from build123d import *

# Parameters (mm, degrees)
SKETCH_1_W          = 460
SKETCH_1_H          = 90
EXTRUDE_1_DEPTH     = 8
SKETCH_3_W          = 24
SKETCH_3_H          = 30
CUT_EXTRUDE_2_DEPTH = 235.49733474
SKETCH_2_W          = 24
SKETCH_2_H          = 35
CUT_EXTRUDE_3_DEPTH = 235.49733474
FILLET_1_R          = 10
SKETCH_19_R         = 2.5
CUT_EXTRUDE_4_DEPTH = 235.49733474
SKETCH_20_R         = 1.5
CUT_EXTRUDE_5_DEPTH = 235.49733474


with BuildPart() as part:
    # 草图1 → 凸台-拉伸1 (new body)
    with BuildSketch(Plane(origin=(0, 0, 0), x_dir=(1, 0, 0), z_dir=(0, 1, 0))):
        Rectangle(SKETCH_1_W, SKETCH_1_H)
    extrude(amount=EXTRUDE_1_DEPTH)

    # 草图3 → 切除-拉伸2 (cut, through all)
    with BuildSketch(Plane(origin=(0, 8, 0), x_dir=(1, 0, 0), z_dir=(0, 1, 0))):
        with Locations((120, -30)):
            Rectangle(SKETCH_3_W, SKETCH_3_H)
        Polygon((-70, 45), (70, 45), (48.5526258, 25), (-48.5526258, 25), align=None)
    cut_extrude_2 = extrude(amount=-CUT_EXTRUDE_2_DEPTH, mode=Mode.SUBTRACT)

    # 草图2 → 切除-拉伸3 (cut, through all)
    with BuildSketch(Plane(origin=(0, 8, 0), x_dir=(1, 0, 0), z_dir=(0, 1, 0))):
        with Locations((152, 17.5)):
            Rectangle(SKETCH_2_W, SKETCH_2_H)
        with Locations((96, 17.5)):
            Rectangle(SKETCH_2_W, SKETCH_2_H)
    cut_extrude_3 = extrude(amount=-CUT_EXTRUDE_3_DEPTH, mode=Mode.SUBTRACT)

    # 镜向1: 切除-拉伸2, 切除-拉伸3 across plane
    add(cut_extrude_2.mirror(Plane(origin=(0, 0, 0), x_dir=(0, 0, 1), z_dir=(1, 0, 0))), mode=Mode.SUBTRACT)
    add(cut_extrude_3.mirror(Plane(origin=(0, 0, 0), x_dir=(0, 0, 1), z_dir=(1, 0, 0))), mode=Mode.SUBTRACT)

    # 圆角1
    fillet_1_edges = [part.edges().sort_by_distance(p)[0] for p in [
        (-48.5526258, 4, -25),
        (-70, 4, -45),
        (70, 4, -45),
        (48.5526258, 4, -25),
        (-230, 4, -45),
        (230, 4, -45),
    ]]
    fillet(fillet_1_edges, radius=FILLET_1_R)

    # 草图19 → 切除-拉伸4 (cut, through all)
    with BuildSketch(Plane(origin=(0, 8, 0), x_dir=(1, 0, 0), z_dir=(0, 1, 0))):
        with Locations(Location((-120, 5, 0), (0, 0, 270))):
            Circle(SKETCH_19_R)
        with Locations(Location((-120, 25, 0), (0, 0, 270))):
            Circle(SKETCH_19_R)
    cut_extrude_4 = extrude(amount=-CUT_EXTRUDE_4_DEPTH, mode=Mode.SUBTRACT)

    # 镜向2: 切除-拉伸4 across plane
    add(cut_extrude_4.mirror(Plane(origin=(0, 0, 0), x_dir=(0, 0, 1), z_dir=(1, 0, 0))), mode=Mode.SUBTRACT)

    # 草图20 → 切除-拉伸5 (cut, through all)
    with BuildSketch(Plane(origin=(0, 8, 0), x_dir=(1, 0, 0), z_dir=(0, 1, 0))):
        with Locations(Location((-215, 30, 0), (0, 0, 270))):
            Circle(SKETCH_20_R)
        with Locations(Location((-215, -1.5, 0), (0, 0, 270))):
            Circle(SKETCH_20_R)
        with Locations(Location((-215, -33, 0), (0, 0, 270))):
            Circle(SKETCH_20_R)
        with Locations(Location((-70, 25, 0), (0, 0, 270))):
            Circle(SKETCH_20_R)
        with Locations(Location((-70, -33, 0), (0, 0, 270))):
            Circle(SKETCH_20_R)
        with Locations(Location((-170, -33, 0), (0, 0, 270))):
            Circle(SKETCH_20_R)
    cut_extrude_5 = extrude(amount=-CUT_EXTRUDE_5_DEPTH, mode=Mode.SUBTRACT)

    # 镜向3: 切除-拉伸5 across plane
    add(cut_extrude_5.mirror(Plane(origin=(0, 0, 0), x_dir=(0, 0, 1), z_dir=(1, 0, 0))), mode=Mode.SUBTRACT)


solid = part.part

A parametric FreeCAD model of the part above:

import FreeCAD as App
import Part
import Sketcher

V = App.Vector
Q = App.Units.Quantity


def edges_at(feature, points):
    """Names of the edges that pass closest to the given points."""
    edges = feature.Shape.Edges
    near = lambda p: min(range(len(edges)), key=lambda i: edges[i].distToShape(Part.Vertex(*p))[0])
    return sorted({f"Edge{near(p) + 1}" for p in points})


def add_polygon(sketch, points):
    """Adds a closed chain of lines whose ends are joined by coincident constraints."""
    first, n = sketch.GeometryCount, len(points)
    for a, b in zip(points, points[1:] + points[:1]):
        sketch.addGeometry(Part.LineSegment(App.Vector(*a, 0), App.Vector(*b, 0)), False)
    for i in range(n):
        sketch.addConstraint(Sketcher.Constraint("Coincident", first + i, 2, first + (i + 1) % n, 1))

doc = App.newDocument("Part")
params = doc.addObject("Spreadsheet::Sheet", "Params")
for row, (alias, value) in enumerate([
    ("sketch1_width", "460 mm"),
    ("sketch1_height", "90 mm"),
    ("pad1_length", "8 mm"),
    ("sketch2_width", "24 mm"),
    ("sketch2_width2", "140 mm"),
    ("sketch2_height", "30 mm"),
    ("sketch3_width", "24 mm"),
    ("sketch3_height", "35 mm"),
    ("fillet_radius", "10 mm"),
    ("sketch4_diameter", "5 mm"),
    ("sketch5_diameter", "3 mm"),
], start=1):
    params.set(f"A{row}", alias)
    params.set(f"B{row}", "=" + value)
    params.setAlias(f"B{row}", alias)

body = doc.addObject("PartDesign::Body", "Body")

sketch1 = body.newObject("Sketcher::SketchObject", "Sketch")
sketch1.AttachmentSupport = (doc.getObject("XZ_Plane"), [""])
sketch1.MapMode = "FlatFace"
add_polygon(sketch1, [(-230, -45), (-230, 45), (230, 45), (230, -45)])
sketch1.addConstraint(Sketcher.Constraint("Vertical", 0))
sketch1.addConstraint(Sketcher.Constraint("Horizontal", 1))
sketch1.addConstraint(Sketcher.Constraint("Vertical", 2))
sketch1.addConstraint(Sketcher.Constraint("Horizontal", 3))
sketch1.addConstraint(Sketcher.Constraint("Symmetric", 0, 2, 2, 2, -1, 1))
sketch1.addConstraint(Sketcher.Constraint("DistanceX", 1, 1, 1, 2, Q("460 mm")))
sketch1.addConstraint(Sketcher.Constraint("DistanceY", 0, 1, 0, 2, Q("90 mm")))
sketch1.setExpression("Constraints[9]", "Params.sketch1_width")
sketch1.setExpression("Constraints[10]", "Params.sketch1_height")
pad1 = body.newObject("PartDesign::Pad", "Pad")
pad1.Profile = sketch1
pad1.setExpression("Length", "Params.pad1_length")
pad1.Reversed = True

sketch2 = body.newObject("Sketcher::SketchObject", "Sketch001")
sketch2.AttachmentSupport = (doc.getObject("XZ_Plane"), [""])
sketch2.MapMode = "FlatFace"
sketch2.AttachmentOffset = App.Placement(V(0, 0, -8), App.Rotation())
add_polygon(sketch2, [(108, 15), (108, 45), (132, 45), (132, 15)])
add_polygon(sketch2, [(70, -45), (-70, -45), (-49, -25), (49, -25)])
sketch2.addConstraint(Sketcher.Constraint("Vertical", 0))
sketch2.addConstraint(Sketcher.Constraint("Horizontal", 1))
sketch2.addConstraint(Sketcher.Constraint("Vertical", 2))
sketch2.addConstraint(Sketcher.Constraint("Horizontal", 3))
sketch2.addConstraint(Sketcher.Constraint("Horizontal", 4))
sketch2.addConstraint(Sketcher.Constraint("Horizontal", 6))
sketch2.addConstraint(Sketcher.Constraint("Equal", 5, 7))
sketch2.addConstraint(Sketcher.Constraint("DistanceX", 1, 1, 1, 2, Q("24 mm")))
sketch2.addConstraint(Sketcher.Constraint("DistanceX", 4, 2, 4, 1, Q("140 mm")))
sketch2.addConstraint(Sketcher.Constraint("DistanceY", 0, 1, 0, 2, Q("30 mm")))
sketch2.addConstraint(Sketcher.Constraint("Angle", 5, Q("43 deg")))
sketch2.addConstraint(Sketcher.Constraint("DistanceX", -1, 1, 0, 2, Q("108 mm")))
sketch2.addConstraint(Sketcher.Constraint("DistanceY", -1, 1, 0, 2, Q("45 mm")))
sketch2.addConstraint(Sketcher.Constraint("DistanceX", 4, 2, -1, 1, Q("70 mm")))
sketch2.addConstraint(Sketcher.Constraint("DistanceY", 4, 2, -1, 1, Q("45 mm")))
sketch2.addConstraint(Sketcher.Constraint("DistanceY", 5, 2, -1, 1, Q("25 mm")))
sketch2.setExpression("Constraints[15]", "Params.sketch2_width")
sketch2.setExpression("Constraints[16]", "Params.sketch2_width2")
sketch2.setExpression("Constraints[17]", "Params.sketch2_height")
pocket1 = body.newObject("PartDesign::Pocket", "Pocket")
pocket1.Profile = sketch2
pocket1.Type = "ThroughAll"
pocket1.Reversed = True

sketch3 = body.newObject("Sketcher::SketchObject", "Sketch002")
sketch3.AttachmentSupport = (doc.getObject("XZ_Plane"), [""])
sketch3.MapMode = "FlatFace"
sketch3.AttachmentOffset = App.Placement(V(0, 0, -8), App.Rotation())
add_polygon(sketch3, [(140, -35), (140, 0), (164, 0), (164, -35)])
add_polygon(sketch3, [(84, -35), (84, 0), (108, 0), (108, -35)])
sketch3.addConstraint(Sketcher.Constraint("Vertical", 0))
sketch3.addConstraint(Sketcher.Constraint("Horizontal", 1))
sketch3.addConstraint(Sketcher.Constraint("Vertical", 2))
sketch3.addConstraint(Sketcher.Constraint("Horizontal", 3))
sketch3.addConstraint(Sketcher.Constraint("Vertical", 4))
sketch3.addConstraint(Sketcher.Constraint("Horizontal", 5))
sketch3.addConstraint(Sketcher.Constraint("Vertical", 6))
sketch3.addConstraint(Sketcher.Constraint("Horizontal", 7))
sketch3.addConstraint(Sketcher.Constraint("PointOnObject", 0, 2, -1))
sketch3.addConstraint(Sketcher.Constraint("PointOnObject", 4, 2, -1))
sketch3.addConstraint(Sketcher.Constraint("Horizontal", 3, 2, 6, 2))
sketch3.addConstraint(Sketcher.Constraint("Equal", 3, 5))
sketch3.addConstraint(Sketcher.Constraint("DistanceX", 1, 1, 1, 2, Q("24 mm")))
sketch3.addConstraint(Sketcher.Constraint("DistanceY", 0, 1, 0, 2, Q("35 mm")))
sketch3.addConstraint(Sketcher.Constraint("DistanceX", -1, 1, 0, 2, Q("140 mm")))
sketch3.addConstraint(Sketcher.Constraint("DistanceX", -1, 1, 4, 2, Q("84 mm")))
sketch3.setExpression("Constraints[20]", "Params.sketch3_width")
sketch3.setExpression("Constraints[21]", "Params.sketch3_height")
pocket2 = body.newObject("PartDesign::Pocket", "Pocket001")
pocket2.Profile = sketch3
pocket2.Type = "ThroughAll"
pocket2.Reversed = True
doc.recompute()

mirrored = body.newObject("PartDesign::Mirrored", "Mirrored")
mirrored.Originals = [pocket1, pocket2]
mirrored.MirrorPlane = (doc.getObject("YZ_Plane"), [""])
body.Tip = mirrored
doc.recompute()

fillet = body.newObject("PartDesign::Fillet", "Fillet")
fillet.Base = (mirrored, edges_at(mirrored, [
    (-48.553, 4, -25),
    (-70, 4, -45),
    (70, 4, -45),
    (48.553, 4, -25),
    (-230, 4, -45),
    (230, 4, -45),
]))
fillet.setExpression("Radius", "Params.fillet_radius")

sketch4 = body.newObject("Sketcher::SketchObject", "Sketch003")
sketch4.AttachmentSupport = (doc.getObject("XZ_Plane"), [""])
sketch4.MapMode = "FlatFace"
sketch4.AttachmentOffset = App.Placement(V(0, 0, -8), App.Rotation())
sketch4.addGeometry(Part.Circle(V(-120, -5, 0), V(0, 0, 1), 2.5), False)
sketch4.addGeometry(Part.Circle(V(-120, -25, 0), V(0, 0, 1), 2.5), False)
sketch4.addConstraint(Sketcher.Constraint("Equal", 0, 1))
sketch4.addConstraint(Sketcher.Constraint("Vertical", 0, 3, 1, 3))
sketch4.addConstraint(Sketcher.Constraint("Diameter", 0, Q("5 mm")))
sketch4.addConstraint(Sketcher.Constraint("DistanceX", 0, 3, -1, 1, Q("120 mm")))
sketch4.addConstraint(Sketcher.Constraint("DistanceY", 0, 3, -1, 1, Q("5 mm")))
sketch4.addConstraint(Sketcher.Constraint("DistanceY", 1, 3, -1, 1, Q("25 mm")))
sketch4.setExpression("Constraints[2]", "Params.sketch4_diameter")
pocket3 = body.newObject("PartDesign::Pocket", "Pocket002")
pocket3.Profile = sketch4
pocket3.Type = "ThroughAll"
pocket3.Reversed = True
doc.recompute()

mirrored2 = body.newObject("PartDesign::Mirrored", "Mirrored001")
mirrored2.Originals = [pocket3]
mirrored2.MirrorPlane = (doc.getObject("YZ_Plane"), [""])
body.Tip = mirrored2

sketch5 = body.newObject("Sketcher::SketchObject", "Sketch004")
sketch5.AttachmentSupport = (doc.getObject("XZ_Plane"), [""])
sketch5.MapMode = "FlatFace"
sketch5.AttachmentOffset = App.Placement(V(0, 0, -8), App.Rotation())
sketch5.addGeometry(Part.Circle(V(-215, -30, 0), V(0, 0, 1), 1.5), False)
sketch5.addGeometry(Part.Circle(V(-215, 1.5, 0), V(0, 0, 1), 1.5), False)
sketch5.addGeometry(Part.Circle(V(-215, 33, 0), V(0, 0, 1), 1.5), False)
sketch5.addGeometry(Part.Circle(V(-70, -25, 0), V(0, 0, 1), 1.5), False)
sketch5.addGeometry(Part.Circle(V(-70, 33, 0), V(0, 0, 1), 1.5), False)
sketch5.addGeometry(Part.Circle(V(-170, 33, 0), V(0, 0, 1), 1.5), False)
sketch5.addConstraint(Sketcher.Constraint("Equal", 0, 1))
sketch5.addConstraint(Sketcher.Constraint("Equal", 1, 2))
sketch5.addConstraint(Sketcher.Constraint("Equal", 2, 3))
sketch5.addConstraint(Sketcher.Constraint("Equal", 3, 4))
sketch5.addConstraint(Sketcher.Constraint("Equal", 4, 5))
sketch5.addConstraint(Sketcher.Constraint("Horizontal", 2, 3, 4, 3))
sketch5.addConstraint(Sketcher.Constraint("Horizontal", 4, 3, 5, 3))
sketch5.addConstraint(Sketcher.Constraint("Vertical", 0, 3, 1, 3))
sketch5.addConstraint(Sketcher.Constraint("Vertical", 1, 3, 2, 3))
sketch5.addConstraint(Sketcher.Constraint("Vertical", 3, 3, 4, 3))
sketch5.addConstraint(Sketcher.Constraint("Diameter", 0, Q("3 mm")))
sketch5.addConstraint(Sketcher.Constraint("DistanceX", 0, 3, -1, 1, Q("215 mm")))
sketch5.addConstraint(Sketcher.Constraint("DistanceY", 0, 3, -1, 1, Q("30 mm")))
sketch5.addConstraint(Sketcher.Constraint("DistanceY", -1, 1, 2, 3, Q("33 mm")))
sketch5.addConstraint(Sketcher.Constraint("DistanceX", 3, 3, -1, 1, Q("70 mm")))
sketch5.addConstraint(Sketcher.Constraint("DistanceY", 3, 3, -1, 1, Q("25 mm")))
sketch5.addConstraint(Sketcher.Constraint("DistanceX", 5, 3, -1, 1, Q("170 mm")))
sketch5.addConstraint(Sketcher.Constraint("DistanceY", -1, 1, 1, 3, Q("1.5 mm")))
sketch5.setExpression("Constraints[10]", "Params.sketch5_diameter")
pocket4 = body.newObject("PartDesign::Pocket", "Pocket003")
pocket4.Profile = sketch5
pocket4.Type = "ThroughAll"
pocket4.Reversed = True
doc.recompute()

mirrored3 = body.newObject("PartDesign::Mirrored", "Mirrored002")
mirrored3.Originals = [pocket4]
mirrored3.MirrorPlane = (doc.getObject("YZ_Plane"), [""])
body.Tip = mirrored3

doc.recompute()
